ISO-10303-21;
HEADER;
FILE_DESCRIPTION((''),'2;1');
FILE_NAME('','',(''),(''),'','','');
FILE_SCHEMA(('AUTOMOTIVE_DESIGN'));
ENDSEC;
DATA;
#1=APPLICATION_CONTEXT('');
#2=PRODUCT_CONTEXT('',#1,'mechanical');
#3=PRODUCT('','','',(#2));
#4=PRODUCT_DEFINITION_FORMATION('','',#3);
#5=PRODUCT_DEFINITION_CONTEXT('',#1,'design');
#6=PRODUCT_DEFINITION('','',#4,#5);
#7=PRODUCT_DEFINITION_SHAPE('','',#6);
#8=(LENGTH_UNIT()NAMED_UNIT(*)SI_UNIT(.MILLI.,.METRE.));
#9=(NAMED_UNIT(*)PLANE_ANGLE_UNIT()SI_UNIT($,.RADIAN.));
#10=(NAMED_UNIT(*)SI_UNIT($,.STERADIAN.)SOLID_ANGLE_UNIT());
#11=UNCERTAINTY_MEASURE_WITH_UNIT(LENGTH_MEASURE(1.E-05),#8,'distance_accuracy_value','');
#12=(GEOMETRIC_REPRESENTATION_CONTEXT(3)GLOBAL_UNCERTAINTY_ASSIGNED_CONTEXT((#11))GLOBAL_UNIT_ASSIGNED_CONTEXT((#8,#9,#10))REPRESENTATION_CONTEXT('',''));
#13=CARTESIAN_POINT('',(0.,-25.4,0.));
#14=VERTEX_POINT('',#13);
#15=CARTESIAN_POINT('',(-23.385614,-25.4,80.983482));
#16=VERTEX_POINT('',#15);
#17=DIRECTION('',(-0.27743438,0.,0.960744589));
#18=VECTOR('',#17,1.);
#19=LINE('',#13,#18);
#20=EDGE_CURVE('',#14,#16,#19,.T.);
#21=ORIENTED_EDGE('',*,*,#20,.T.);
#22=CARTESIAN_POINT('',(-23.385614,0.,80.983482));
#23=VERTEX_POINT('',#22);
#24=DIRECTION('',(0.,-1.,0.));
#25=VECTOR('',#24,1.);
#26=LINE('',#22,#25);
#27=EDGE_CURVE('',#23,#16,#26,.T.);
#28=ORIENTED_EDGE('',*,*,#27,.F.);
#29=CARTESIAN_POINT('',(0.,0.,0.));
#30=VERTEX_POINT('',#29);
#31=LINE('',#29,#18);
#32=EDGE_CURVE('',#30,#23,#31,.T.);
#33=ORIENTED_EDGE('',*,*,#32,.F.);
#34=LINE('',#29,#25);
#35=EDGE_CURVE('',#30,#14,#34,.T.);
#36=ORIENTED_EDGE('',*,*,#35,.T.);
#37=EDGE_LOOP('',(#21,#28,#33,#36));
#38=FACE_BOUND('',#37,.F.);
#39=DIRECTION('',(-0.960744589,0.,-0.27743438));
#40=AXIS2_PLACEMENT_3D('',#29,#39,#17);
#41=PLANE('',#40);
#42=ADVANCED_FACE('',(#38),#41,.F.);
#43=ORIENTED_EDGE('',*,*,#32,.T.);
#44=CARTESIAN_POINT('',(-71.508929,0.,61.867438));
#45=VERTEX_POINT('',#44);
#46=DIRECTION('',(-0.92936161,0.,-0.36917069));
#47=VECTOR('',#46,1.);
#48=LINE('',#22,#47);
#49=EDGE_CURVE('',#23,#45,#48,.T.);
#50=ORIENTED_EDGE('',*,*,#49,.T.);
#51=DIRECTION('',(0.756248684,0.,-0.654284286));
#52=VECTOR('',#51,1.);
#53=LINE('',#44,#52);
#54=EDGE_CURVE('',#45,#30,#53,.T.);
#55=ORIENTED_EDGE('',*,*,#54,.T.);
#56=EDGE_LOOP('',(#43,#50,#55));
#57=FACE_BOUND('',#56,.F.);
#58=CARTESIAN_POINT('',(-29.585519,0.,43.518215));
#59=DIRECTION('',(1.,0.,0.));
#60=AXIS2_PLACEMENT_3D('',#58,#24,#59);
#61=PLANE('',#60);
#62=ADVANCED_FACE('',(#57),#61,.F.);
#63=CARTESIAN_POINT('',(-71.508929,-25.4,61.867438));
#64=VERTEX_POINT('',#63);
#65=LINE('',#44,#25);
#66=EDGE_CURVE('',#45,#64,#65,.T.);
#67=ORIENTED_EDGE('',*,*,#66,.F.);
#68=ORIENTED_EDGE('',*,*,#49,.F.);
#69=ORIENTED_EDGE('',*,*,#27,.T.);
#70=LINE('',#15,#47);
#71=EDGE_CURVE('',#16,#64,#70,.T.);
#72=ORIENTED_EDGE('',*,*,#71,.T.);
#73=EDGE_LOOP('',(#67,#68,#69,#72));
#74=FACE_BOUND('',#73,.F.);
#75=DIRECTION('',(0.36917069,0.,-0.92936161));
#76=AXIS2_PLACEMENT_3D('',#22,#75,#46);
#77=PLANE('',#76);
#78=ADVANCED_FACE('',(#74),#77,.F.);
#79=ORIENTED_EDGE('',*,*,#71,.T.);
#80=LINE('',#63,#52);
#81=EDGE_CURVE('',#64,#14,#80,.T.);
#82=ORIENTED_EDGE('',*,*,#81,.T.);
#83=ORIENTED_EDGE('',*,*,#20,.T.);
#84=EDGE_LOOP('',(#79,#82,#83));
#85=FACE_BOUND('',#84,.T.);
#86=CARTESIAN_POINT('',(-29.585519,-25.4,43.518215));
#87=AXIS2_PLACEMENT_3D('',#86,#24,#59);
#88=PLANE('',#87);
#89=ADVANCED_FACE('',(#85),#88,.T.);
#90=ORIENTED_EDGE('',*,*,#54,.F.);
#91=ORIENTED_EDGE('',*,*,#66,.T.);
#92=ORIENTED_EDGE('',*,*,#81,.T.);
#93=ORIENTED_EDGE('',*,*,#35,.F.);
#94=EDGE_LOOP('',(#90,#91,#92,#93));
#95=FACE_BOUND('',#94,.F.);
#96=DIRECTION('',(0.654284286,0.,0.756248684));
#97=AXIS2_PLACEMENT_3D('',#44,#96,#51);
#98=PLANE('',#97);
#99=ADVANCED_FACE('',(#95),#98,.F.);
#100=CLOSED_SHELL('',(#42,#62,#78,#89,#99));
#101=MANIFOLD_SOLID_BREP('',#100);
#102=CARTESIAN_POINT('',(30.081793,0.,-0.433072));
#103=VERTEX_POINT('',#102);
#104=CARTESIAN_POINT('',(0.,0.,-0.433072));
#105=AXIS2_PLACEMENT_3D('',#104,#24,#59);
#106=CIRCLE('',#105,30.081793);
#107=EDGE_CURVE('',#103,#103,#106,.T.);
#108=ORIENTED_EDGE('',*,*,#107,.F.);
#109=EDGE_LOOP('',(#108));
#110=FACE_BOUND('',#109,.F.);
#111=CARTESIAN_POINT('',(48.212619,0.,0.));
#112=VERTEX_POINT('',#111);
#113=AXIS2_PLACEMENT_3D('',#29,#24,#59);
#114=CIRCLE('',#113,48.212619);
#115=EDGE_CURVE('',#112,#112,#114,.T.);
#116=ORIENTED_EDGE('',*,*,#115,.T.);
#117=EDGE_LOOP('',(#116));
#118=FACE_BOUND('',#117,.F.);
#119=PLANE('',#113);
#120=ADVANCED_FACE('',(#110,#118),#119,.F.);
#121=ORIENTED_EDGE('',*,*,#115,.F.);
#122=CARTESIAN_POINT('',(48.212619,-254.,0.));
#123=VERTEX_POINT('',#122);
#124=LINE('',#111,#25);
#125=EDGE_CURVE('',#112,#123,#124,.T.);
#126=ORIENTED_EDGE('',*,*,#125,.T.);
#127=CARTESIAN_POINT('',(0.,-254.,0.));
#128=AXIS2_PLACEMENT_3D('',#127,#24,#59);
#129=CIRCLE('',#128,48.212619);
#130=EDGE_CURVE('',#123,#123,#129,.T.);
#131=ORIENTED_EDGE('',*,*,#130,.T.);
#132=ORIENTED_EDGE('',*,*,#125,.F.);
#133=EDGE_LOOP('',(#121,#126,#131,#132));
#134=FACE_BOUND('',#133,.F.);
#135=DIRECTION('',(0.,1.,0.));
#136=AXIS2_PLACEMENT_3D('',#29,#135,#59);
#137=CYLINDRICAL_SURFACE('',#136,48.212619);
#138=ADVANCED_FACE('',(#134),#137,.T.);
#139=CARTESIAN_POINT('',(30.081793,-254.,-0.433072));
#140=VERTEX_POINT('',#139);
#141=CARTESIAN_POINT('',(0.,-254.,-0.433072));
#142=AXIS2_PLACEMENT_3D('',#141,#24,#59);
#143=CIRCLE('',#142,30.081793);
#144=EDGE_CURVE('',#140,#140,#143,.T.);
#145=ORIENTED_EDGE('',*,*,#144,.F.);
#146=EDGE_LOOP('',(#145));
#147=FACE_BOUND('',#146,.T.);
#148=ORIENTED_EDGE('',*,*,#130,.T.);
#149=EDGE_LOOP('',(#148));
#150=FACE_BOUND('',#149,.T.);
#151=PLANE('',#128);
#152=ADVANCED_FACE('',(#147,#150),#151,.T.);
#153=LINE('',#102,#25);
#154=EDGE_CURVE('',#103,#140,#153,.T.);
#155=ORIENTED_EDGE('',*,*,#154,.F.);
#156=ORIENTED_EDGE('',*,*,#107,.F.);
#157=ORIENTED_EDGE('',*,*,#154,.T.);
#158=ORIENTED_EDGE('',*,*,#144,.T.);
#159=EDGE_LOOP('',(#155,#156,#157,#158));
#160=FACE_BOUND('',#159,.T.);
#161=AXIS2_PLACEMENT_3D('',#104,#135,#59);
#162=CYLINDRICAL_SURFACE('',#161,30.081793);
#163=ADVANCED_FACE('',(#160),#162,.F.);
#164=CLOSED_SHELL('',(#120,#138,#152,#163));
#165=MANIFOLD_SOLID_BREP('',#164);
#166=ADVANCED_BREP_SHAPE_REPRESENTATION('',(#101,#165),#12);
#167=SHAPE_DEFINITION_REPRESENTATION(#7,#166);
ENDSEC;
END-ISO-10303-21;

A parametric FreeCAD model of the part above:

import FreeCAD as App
import Part
import Sketcher
Q = App.Units.Quantity

doc = App.newDocument("Part")
body = doc.addObject("PartDesign::Body", "Body")

sketch1 = doc.addObject("Sketcher::SketchObject", "Sketch")
body.addObject(sketch1)
sketch1.AttachmentSupport = (doc.XZ_Plane, [""])
sketch1.MapMode = "FlatFace"
sketch1.addGeometry([
    Part.LineSegment(App.Vector(-23.385614, 80.983482, 0), App.Vector(-71.508929, 61.867438, 0)),
    Part.LineSegment(App.Vector(-71.508929, 61.867438, 0), App.Vector(0, 0, 0)),
    Part.LineSegment(App.Vector(0, 0, 0), App.Vector(-23.385614, 80.983482, 0)),
], False)
sketch1.addConstraint([
    Sketcher.Constraint("Coincident", 0, 2, 1, 1),
    Sketcher.Constraint("Coincident", 1, 2, 2, 1),
    Sketcher.Constraint("Coincident", 2, 2, 0, 1),
    Sketcher.Constraint("Coincident", 1, 2, -1, 1),
    Sketcher.Constraint("DistanceY", 0, 2, 2, 2, Q("0.7526002 in")),
    Sketcher.Constraint("DistanceX", 0, 2, -1, 1, Q("71.508929 mm")),
    Sketcher.Constraint("DistanceY", -1, 1, 2, 2, Q("80.983482 mm")),
    Sketcher.Constraint("Distance", 0, Q("51.781045 mm")),
])
pad1 = doc.addObject("PartDesign::Pad", "Pad")
body.addObject(pad1)
pad1.Profile = sketch1
pad1.Length = Q("1 in")
body2 = doc.addObject("PartDesign::Body", "Body001")

sketch2 = doc.addObject("Sketcher::SketchObject", "Sketch001")
body2.addObject(sketch2)
sketch2.AttachmentSupport = (doc.getObject("XZ_Plane001"), [""])
sketch2.MapMode = "FlatFace"
sketch2.addGeometry([
    Part.Circle(App.Vector(0, 0, 0), App.Vector(0, 0, 1), 48.212619),
    Part.Circle(App.Vector(0, -0.433072, 0), App.Vector(0, 0, 1), 30.081793),
], False)
sketch2.addConstraint([
    Sketcher.Constraint("Coincident", 0, 3, -1, 1),
    Sketcher.Constraint("PointOnObject", 1, 3, -2),
    Sketcher.Constraint("Diameter", 0, Q("96.425238 mm")),
    Sketcher.Constraint("Diameter", 1, Q("60.163586 mm")),
    Sketcher.Constraint("DistanceY", 1, 3, -1, 1, Q("0.433072 mm")),
])
pad2 = doc.addObject("PartDesign::Pad", "Pad001")
body2.addObject(pad2)
pad2.Profile = sketch2
pad2.Length = Q("10 in")

doc.recompute()
